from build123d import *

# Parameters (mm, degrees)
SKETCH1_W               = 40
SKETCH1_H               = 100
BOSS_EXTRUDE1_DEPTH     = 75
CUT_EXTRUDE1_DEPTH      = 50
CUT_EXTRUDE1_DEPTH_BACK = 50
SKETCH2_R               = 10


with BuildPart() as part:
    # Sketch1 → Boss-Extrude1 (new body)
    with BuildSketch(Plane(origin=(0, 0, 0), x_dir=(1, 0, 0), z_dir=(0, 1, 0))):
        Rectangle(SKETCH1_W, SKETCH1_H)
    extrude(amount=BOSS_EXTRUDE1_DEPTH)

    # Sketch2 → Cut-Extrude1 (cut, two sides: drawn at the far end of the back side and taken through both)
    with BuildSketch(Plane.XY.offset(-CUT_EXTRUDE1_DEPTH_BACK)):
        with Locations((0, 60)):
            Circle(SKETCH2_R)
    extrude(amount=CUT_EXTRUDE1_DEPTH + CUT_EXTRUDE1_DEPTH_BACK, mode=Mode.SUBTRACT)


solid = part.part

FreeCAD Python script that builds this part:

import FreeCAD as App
import Part
import Sketcher
from FreeCAD import Vector
Q = App.Units.Quantity

doc = App.newDocument("Part")
params = doc.addObject("Spreadsheet::Sheet", "Params")
for row, (alias, value) in enumerate([
    ("sketch1_width", "40 mm"),
    ("sketch1_height", "100 mm"),
    ("pad1_length", "75 mm"),
    ("sketch2_diameter", "20 mm"),
], start=1):
    params.set(f"A{row}", alias)
    params.set(f"B{row}", "=" + value)
    params.setAlias(f"B{row}", alias)

body = doc.addObject("PartDesign::Body", "Body")

sketch1 = body.newObject("Sketcher::SketchObject", "Sketch")
sketch1.AttachmentSupport = (doc.getObject("XZ_Plane"), [""])
sketch1.MapMode = "FlatFace"
sketch1.addGeometry([
    Part.LineSegment(Vector(-20, -50, 0), Vector(-20, 50, 0)),
    Part.LineSegment(Vector(-20, 50, 0), Vector(20, 50, 0)),
    Part.LineSegment(Vector(20, 50, 0), Vector(20, -50, 0)),
    Part.LineSegment(Vector(20, -50, 0), Vector(-20, -50, 0)),
], False)
sketch1.addConstraint([
    Sketcher.Constraint("Coincident", 0, 2, 1, 1),
    Sketcher.Constraint("Coincident", 1, 2, 2, 1),
    Sketcher.Constraint("Coincident", 2, 2, 3, 1),
    Sketcher.Constraint("Coincident", 3, 2, 0, 1),
    Sketcher.Constraint("Vertical", 0),
    Sketcher.Constraint("Horizontal", 1),
    Sketcher.Constraint("Vertical", 2),
    Sketcher.Constraint("Horizontal", 3),
    Sketcher.Constraint("Symmetric", 0, 2, 2, 2, -1, 1),
    Sketcher.Constraint("DistanceX", 1, 1, 1, 2, Q("40 mm")),
    Sketcher.Constraint("DistanceY", 0, 1, 0, 2, Q("100 mm")),
])
sketch1.setExpression("Constraints[9]", "Params.sketch1_width")
sketch1.setExpression("Constraints[10]", "Params.sketch1_height")
pad1 = body.newObject("PartDesign::Pad", "Pad")
pad1.Profile = sketch1
pad1.setExpression("Length", "Params.pad1_length")
pad1.Reversed = True

sketch2 = body.newObject("Sketcher::SketchObject", "Sketch001")
sketch2.AttachmentSupport = (doc.getObject("XY_Plane"), [""])
sketch2.MapMode = "FlatFace"
sketch2.addGeometry(Part.Circle(Vector(0, 60, 0), Vector(0, 0, 1), 10), False)
sketch2.addConstraint([
    Sketcher.Constraint("PointOnObject", 0, 3, -2),
    Sketcher.Constraint("Diameter", 0, Q("20 mm")),
    Sketcher.Constraint("DistanceY", -1, 1, 0, 3, Q("60 mm")),
])
sketch2.setExpression("Constraints[1]", "Params.sketch2_diameter")
pocket1 = body.newObject("PartDesign::Pocket", "Pocket")
pocket1.Profile = sketch2
pocket1.Type = "ThroughAll"
pocket1.Midplane = True

doc.recompute()
